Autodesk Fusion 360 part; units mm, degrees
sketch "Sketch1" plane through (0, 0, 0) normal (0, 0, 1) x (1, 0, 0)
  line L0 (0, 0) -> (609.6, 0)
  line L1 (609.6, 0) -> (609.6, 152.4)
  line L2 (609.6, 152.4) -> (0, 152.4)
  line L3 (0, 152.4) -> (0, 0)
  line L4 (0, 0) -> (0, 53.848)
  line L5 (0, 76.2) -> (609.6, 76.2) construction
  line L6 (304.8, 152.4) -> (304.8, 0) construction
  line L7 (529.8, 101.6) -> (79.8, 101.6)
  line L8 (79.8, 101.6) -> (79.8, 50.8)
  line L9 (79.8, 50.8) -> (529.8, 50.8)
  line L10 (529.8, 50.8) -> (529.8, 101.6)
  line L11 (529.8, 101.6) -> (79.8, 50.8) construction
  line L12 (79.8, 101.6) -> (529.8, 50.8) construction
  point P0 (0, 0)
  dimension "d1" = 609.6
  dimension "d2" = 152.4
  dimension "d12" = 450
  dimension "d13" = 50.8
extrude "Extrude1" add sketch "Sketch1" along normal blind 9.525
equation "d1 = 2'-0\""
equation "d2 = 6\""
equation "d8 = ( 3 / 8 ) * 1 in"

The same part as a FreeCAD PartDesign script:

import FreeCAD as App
import Part
import Sketcher
Q = App.Units.Quantity


def add_polygon(sketch, points):
    """Adds a closed chain of lines whose ends are joined by coincident constraints."""
    first, n = sketch.GeometryCount, len(points)
    for a, b in zip(points, points[1:] + points[:1]):
        sketch.addGeometry(Part.LineSegment(App.Vector(*a, 0), App.Vector(*b, 0)), False)
    for i in range(n):
        sketch.addConstraint(Sketcher.Constraint("Coincident", first + i, 2, first + (i + 1) % n, 1))

doc = App.newDocument("Part")
body = doc.addObject("PartDesign::Body", "Body")

sketch1 = body.newObject("Sketcher::SketchObject", "Sketch")
sketch1.AttachmentSupport = (doc.getObject("XY_Plane"), [""])
sketch1.MapMode = "FlatFace"
add_polygon(sketch1, [(0, 152), (0, 0), (610, 0), (610, 152)])
add_polygon(sketch1, [(80, 102), (530, 102), (530, 51), (80, 51)])
sketch1.addConstraint(Sketcher.Constraint("Vertical", 0))
sketch1.addConstraint(Sketcher.Constraint("Horizontal", 1))
sketch1.addConstraint(Sketcher.Constraint("Vertical", 2))
sketch1.addConstraint(Sketcher.Constraint("Horizontal", 3))
sketch1.addConstraint(Sketcher.Constraint("Horizontal", 4))
sketch1.addConstraint(Sketcher.Constraint("Vertical", 5))
sketch1.addConstraint(Sketcher.Constraint("Horizontal", 6))
sketch1.addConstraint(Sketcher.Constraint("Vertical", 7))
sketch1.addConstraint(Sketcher.Constraint("Coincident", 0, 2, -1, 1))
sketch1.addConstraint(Sketcher.Constraint("DistanceX", 1, 1, 1, 2, Q("24 in")))
sketch1.addConstraint(Sketcher.Constraint("DistanceY", 0, 2, 0, 1, Q("6 in")))
sketch1.addConstraint(Sketcher.Constraint("DistanceY", 5, 2, 5, 1, Q("2 in")))
sketch1.addConstraint(Sketcher.Constraint("DistanceY", -1, 1, 5, 2, Q("2 in")))
sketch1.addConstraint(Sketcher.Constraint("DistanceX", 4, 1, 4, 2, 450.0))
sketch1.addConstraint(Sketcher.Constraint("DistanceX", -1, 1, 4, 2, 529.8))
pad1 = body.newObject("PartDesign::Pad", "Pad")
pad1.Profile = sketch1
pad1.Length = Q("0.375 in")

doc.recompute()
